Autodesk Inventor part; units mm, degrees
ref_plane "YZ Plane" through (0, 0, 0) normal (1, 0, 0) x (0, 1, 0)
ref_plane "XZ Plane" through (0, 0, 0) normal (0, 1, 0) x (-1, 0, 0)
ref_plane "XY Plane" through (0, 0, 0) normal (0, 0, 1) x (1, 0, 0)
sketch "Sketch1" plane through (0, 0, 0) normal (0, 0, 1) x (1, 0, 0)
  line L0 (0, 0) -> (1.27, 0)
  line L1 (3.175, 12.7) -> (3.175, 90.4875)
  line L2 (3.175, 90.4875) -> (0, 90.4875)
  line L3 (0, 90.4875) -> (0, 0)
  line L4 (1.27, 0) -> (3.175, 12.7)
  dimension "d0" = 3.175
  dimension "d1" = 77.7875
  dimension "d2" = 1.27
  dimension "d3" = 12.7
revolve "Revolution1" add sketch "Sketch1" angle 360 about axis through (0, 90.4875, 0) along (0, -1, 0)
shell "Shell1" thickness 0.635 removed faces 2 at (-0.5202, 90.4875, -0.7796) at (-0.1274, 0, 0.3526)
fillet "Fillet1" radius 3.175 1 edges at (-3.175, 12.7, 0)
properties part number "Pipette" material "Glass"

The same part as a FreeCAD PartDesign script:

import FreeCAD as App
import Part
import Sketcher
from FreeCAD import Vector
Q = App.Units.Quantity


def edges_at(feature, points):
    """Names of the edges that pass closest to the given points."""
    edges = feature.Shape.Edges
    near = lambda p: min(range(len(edges)), key=lambda i: edges[i].distToShape(Part.Vertex(*p))[0])
    return sorted({f"Edge{near(p) + 1}" for p in points})


def faces_at(feature, points):
    """Names of the faces that lie closest to the given points."""
    faces = feature.Shape.Faces
    near = lambda p: min(range(len(faces)), key=lambda i: faces[i].distToShape(Part.Vertex(*p))[0])
    return sorted({f"Face{near(p) + 1}" for p in points})


def add_polygon(sketch, points):
    """Adds a closed chain of lines whose ends are joined by coincident constraints."""
    first, n = sketch.GeometryCount, len(points)
    for a, b in zip(points, points[1:] + points[:1]):
        sketch.addGeometry(Part.LineSegment(App.Vector(*a, 0), App.Vector(*b, 0)), False)
    for i in range(n):
        sketch.addConstraint(Sketcher.Constraint("Coincident", first + i, 2, first + (i + 1) % n, 1))

doc = App.newDocument("Part")
body = doc.addObject("PartDesign::Body", "Body")

# Sketch on XY plane
sketch1 = body.newObject("Sketcher::SketchObject", "Sketch")
sketch1.AttachmentSupport = (doc.getObject("XY_Plane"), [""])
sketch1.MapMode = "FlatFace"
add_polygon(sketch1, [(0, 90.5), (0, 0), (1.3, 0), (3.2, 12.7), (3.2, 90.5)])  # lines 0-4
sketch1.addConstraint([
    Sketcher.Constraint("Vertical", 0),
    Sketcher.Constraint("Horizontal", 1),
    Sketcher.Constraint("Vertical", 3),
    Sketcher.Constraint("Horizontal", 4),
    Sketcher.Constraint("Coincident", 0, 2, -1, 1),
    Sketcher.Constraint("DistanceX", 1, 1, 1, 2, Q("0.05 in")),
    Sketcher.Constraint("DistanceY", -1, 1, 2, 2, Q("0.5 in")),
    Sketcher.Constraint("DistanceX", 4, 2, 4, 1, Q("0.125 in")),
    Sketcher.Constraint("DistanceY", 3, 1, 3, 2, Q("3.0625 in")),
])
revolution = body.newObject("PartDesign::Revolution", "Revolution")
revolution.Profile = sketch1
revolution.ReferenceAxis = (sketch1, ["V_Axis"])
revolution.Angle = 360
doc.recompute()

thickness = body.newObject("PartDesign::Thickness", "Thickness")
thickness.Base = (revolution, faces_at(revolution, [(-0.52, 90.487, -0.78), (-0.127, 0, 0.353)]))
thickness.Value = Q("0.025 in")
thickness.Reversed = True
thickness.Join = "Intersection"
doc.recompute()

fillet = body.newObject("PartDesign::Fillet", "Fillet")
fillet.Base = (thickness, edges_at(thickness, [(-3.175, 12.7, 0)]))
fillet.Radius = Q("0.125 in")

doc.recompute()
